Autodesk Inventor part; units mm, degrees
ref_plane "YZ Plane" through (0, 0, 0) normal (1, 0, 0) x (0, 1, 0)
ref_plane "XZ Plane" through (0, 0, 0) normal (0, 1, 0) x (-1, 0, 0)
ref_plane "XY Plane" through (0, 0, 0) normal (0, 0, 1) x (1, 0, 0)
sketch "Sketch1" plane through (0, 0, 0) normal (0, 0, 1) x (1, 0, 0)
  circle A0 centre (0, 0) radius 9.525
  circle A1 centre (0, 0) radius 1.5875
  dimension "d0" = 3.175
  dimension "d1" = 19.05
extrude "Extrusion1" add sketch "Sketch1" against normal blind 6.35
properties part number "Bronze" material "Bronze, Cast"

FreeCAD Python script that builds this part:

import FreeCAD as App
import Part
import Sketcher

V = App.Vector
Q = App.Units.Quantity

doc = App.newDocument("Part")
body = doc.addObject("PartDesign::Body", "Body")

# Sketch on XY plane
sketch1 = body.newObject("Sketcher::SketchObject", "Sketch")
sketch1.AttachmentSupport = (doc.getObject("XY_Plane"), [""])
sketch1.MapMode = "FlatFace"
sketch1.addGeometry([
    Part.Circle(V(0, 0, 0), V(0, 0, 1), 9.525),
    Part.Circle(V(0, 0, 0), V(0, 0, 1), 1.5875),
], False)
sketch1.addConstraint([
    Sketcher.Constraint("Coincident", 0, 3, -1, 1),
    Sketcher.Constraint("Coincident", 1, 3, -1, 1),
    Sketcher.Constraint("Diameter", 0, Q("0.75 in")),
    Sketcher.Constraint("Diameter", 1, Q("0.125 in")),
])
pad1 = body.newObject("PartDesign::Pad", "Pad")
pad1.Profile = sketch1
pad1.Length = Q("0.25 in")
pad1.Reversed = True

doc.recompute()
